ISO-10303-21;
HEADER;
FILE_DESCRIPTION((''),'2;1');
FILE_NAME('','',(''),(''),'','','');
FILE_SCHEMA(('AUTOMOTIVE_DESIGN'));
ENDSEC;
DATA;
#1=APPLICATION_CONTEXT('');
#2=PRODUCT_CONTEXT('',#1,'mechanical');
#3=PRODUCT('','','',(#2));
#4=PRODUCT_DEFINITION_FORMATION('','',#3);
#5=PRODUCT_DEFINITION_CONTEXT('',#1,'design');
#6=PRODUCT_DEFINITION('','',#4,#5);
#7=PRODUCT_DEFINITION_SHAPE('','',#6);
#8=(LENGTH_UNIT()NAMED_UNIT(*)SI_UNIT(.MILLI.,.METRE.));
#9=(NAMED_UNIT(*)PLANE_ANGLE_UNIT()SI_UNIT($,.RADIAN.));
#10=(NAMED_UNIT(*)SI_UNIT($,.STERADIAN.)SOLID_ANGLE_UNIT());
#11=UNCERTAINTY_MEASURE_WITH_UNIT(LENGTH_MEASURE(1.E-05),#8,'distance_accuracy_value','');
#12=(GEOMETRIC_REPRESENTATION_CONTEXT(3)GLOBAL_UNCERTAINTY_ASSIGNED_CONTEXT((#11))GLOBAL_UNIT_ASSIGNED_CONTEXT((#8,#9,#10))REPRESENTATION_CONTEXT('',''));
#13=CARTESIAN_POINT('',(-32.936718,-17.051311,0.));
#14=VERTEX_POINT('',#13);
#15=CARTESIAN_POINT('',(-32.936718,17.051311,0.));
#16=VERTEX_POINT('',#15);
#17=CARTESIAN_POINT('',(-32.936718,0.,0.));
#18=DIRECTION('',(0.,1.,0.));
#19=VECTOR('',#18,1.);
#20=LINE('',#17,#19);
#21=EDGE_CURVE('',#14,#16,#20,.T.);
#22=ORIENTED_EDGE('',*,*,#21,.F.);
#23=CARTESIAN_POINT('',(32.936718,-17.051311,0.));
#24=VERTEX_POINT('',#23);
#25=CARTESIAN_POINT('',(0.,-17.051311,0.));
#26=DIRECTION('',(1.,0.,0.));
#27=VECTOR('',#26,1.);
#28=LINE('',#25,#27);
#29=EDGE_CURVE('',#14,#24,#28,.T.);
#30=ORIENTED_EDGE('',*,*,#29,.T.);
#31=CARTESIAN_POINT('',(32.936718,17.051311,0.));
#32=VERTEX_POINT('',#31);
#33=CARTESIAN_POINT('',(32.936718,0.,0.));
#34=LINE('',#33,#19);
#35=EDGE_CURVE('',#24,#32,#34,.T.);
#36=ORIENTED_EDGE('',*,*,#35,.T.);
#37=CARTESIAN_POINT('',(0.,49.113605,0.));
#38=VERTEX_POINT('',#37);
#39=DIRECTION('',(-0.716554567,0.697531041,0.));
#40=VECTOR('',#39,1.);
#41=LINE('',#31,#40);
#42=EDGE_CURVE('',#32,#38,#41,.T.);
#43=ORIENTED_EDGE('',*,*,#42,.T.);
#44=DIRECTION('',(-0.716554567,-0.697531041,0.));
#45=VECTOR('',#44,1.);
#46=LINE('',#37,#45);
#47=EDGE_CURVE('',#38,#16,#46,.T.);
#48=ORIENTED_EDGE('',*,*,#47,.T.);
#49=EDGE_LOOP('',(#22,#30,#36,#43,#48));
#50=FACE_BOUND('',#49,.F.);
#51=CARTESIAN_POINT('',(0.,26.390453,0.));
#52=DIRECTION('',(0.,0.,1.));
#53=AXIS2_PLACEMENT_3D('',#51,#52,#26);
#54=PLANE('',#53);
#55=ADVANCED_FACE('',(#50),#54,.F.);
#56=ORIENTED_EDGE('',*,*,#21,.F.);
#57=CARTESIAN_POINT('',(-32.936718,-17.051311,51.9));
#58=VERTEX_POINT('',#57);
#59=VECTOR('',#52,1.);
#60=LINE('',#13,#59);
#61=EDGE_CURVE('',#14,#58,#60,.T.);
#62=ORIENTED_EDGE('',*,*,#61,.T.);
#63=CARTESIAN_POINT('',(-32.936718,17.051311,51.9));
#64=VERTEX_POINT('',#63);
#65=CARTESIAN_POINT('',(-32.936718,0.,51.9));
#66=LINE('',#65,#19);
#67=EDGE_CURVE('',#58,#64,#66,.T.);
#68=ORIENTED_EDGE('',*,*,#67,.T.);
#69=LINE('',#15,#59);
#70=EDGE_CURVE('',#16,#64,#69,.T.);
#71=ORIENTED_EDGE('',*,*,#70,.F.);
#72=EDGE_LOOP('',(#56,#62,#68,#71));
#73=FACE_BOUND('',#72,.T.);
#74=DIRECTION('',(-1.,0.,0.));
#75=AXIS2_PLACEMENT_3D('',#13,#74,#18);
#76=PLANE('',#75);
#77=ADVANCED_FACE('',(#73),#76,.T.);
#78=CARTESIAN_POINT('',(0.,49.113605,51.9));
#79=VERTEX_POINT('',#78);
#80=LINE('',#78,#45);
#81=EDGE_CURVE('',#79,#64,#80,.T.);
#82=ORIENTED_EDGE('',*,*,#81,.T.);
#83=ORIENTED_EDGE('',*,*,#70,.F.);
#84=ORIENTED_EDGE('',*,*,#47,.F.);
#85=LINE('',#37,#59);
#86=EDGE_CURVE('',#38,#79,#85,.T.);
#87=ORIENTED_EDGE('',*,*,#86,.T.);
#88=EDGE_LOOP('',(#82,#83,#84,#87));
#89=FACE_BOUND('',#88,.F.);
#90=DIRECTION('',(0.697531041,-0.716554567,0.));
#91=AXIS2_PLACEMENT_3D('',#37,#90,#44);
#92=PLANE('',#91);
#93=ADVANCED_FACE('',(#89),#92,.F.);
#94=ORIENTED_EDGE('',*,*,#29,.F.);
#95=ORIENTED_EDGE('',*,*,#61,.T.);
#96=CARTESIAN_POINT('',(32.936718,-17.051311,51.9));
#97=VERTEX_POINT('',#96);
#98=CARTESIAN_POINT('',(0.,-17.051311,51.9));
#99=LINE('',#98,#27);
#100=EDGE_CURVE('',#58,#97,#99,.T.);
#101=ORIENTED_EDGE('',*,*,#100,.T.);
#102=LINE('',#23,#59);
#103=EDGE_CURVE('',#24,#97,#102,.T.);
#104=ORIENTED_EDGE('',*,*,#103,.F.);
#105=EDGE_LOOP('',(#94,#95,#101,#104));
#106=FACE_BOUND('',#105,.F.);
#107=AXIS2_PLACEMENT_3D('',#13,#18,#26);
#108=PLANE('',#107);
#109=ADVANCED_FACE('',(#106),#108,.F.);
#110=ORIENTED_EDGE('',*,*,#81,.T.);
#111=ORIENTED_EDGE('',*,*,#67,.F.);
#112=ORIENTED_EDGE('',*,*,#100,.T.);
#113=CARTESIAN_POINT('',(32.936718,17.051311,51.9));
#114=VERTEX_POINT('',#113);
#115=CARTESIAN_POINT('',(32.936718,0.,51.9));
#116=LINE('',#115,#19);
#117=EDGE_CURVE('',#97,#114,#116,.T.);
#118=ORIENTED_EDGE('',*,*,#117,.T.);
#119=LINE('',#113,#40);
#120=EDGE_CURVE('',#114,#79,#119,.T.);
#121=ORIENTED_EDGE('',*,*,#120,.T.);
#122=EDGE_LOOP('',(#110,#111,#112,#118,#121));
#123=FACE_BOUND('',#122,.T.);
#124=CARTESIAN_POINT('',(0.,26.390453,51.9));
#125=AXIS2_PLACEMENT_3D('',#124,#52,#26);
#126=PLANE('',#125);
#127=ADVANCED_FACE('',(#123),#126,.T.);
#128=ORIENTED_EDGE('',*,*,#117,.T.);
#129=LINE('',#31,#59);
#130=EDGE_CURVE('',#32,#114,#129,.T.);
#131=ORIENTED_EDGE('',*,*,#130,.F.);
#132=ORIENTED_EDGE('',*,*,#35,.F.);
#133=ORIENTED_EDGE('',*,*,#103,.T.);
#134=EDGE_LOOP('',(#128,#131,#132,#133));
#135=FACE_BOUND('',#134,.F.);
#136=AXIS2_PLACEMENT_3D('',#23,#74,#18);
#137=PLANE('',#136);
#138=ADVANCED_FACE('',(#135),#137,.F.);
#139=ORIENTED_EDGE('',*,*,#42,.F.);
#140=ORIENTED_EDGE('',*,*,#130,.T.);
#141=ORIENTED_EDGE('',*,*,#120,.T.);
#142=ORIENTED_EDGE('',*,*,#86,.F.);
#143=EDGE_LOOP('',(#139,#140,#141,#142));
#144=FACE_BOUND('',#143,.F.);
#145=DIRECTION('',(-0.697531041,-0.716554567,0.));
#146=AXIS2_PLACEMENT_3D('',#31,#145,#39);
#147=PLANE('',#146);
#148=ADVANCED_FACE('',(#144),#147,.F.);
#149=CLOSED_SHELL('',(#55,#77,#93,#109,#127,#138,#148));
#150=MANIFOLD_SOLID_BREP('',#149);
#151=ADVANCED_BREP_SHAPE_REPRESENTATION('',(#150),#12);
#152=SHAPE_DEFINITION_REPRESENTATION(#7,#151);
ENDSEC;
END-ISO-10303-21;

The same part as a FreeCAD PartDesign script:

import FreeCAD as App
import Part
import Sketcher

V = App.Vector
Q = App.Units.Quantity


def add_polygon(sketch, points):
    """Adds a closed chain of lines whose ends are joined by coincident constraints."""
    first, n = sketch.GeometryCount, len(points)
    for a, b in zip(points, points[1:] + points[:1]):
        sketch.addGeometry(Part.LineSegment(App.Vector(*a, 0), App.Vector(*b, 0)), False)
    for i in range(n):
        sketch.addConstraint(Sketcher.Constraint("Coincident", first + i, 2, first + (i + 1) % n, 1))

doc = App.newDocument("Part")
body = doc.addObject("PartDesign::Body", "Body")

sketch1 = body.newObject("Sketcher::SketchObject", "Sketch")
sketch1.AttachmentSupport = (doc.getObject("XY_Plane"), [""])
sketch1.MapMode = "FlatFace"
add_polygon(sketch1, [(33, 17), (0, 49), (-33, 17), (-33, -17), (33, -17)])
sketch1.addConstraint([
    Sketcher.Constraint("Vertical", 2),
    Sketcher.Constraint("Horizontal", 3),
    Sketcher.Constraint("Vertical", 4),
    Sketcher.Constraint("Symmetric", 1, 2, 3, 2, -1, 1),
    Sketcher.Constraint("PointOnObject", 0, 2, -2),
    Sketcher.Constraint("Horizontal", 1, 2, 4, 2),
    Sketcher.Constraint("Distance", 0, Q("45.965401 mm")),
    Sketcher.Constraint("DistanceY", 2, 2, 2, 1, Q("34.102622 mm")),
    Sketcher.Constraint("DistanceX", 3, 1, 3, 2, Q("65.873436 mm")),
])
pad1 = body.newObject("PartDesign::Pad", "Pad")
pad1.Profile = sketch1
pad1.Length = 51.9

doc.recompute()
